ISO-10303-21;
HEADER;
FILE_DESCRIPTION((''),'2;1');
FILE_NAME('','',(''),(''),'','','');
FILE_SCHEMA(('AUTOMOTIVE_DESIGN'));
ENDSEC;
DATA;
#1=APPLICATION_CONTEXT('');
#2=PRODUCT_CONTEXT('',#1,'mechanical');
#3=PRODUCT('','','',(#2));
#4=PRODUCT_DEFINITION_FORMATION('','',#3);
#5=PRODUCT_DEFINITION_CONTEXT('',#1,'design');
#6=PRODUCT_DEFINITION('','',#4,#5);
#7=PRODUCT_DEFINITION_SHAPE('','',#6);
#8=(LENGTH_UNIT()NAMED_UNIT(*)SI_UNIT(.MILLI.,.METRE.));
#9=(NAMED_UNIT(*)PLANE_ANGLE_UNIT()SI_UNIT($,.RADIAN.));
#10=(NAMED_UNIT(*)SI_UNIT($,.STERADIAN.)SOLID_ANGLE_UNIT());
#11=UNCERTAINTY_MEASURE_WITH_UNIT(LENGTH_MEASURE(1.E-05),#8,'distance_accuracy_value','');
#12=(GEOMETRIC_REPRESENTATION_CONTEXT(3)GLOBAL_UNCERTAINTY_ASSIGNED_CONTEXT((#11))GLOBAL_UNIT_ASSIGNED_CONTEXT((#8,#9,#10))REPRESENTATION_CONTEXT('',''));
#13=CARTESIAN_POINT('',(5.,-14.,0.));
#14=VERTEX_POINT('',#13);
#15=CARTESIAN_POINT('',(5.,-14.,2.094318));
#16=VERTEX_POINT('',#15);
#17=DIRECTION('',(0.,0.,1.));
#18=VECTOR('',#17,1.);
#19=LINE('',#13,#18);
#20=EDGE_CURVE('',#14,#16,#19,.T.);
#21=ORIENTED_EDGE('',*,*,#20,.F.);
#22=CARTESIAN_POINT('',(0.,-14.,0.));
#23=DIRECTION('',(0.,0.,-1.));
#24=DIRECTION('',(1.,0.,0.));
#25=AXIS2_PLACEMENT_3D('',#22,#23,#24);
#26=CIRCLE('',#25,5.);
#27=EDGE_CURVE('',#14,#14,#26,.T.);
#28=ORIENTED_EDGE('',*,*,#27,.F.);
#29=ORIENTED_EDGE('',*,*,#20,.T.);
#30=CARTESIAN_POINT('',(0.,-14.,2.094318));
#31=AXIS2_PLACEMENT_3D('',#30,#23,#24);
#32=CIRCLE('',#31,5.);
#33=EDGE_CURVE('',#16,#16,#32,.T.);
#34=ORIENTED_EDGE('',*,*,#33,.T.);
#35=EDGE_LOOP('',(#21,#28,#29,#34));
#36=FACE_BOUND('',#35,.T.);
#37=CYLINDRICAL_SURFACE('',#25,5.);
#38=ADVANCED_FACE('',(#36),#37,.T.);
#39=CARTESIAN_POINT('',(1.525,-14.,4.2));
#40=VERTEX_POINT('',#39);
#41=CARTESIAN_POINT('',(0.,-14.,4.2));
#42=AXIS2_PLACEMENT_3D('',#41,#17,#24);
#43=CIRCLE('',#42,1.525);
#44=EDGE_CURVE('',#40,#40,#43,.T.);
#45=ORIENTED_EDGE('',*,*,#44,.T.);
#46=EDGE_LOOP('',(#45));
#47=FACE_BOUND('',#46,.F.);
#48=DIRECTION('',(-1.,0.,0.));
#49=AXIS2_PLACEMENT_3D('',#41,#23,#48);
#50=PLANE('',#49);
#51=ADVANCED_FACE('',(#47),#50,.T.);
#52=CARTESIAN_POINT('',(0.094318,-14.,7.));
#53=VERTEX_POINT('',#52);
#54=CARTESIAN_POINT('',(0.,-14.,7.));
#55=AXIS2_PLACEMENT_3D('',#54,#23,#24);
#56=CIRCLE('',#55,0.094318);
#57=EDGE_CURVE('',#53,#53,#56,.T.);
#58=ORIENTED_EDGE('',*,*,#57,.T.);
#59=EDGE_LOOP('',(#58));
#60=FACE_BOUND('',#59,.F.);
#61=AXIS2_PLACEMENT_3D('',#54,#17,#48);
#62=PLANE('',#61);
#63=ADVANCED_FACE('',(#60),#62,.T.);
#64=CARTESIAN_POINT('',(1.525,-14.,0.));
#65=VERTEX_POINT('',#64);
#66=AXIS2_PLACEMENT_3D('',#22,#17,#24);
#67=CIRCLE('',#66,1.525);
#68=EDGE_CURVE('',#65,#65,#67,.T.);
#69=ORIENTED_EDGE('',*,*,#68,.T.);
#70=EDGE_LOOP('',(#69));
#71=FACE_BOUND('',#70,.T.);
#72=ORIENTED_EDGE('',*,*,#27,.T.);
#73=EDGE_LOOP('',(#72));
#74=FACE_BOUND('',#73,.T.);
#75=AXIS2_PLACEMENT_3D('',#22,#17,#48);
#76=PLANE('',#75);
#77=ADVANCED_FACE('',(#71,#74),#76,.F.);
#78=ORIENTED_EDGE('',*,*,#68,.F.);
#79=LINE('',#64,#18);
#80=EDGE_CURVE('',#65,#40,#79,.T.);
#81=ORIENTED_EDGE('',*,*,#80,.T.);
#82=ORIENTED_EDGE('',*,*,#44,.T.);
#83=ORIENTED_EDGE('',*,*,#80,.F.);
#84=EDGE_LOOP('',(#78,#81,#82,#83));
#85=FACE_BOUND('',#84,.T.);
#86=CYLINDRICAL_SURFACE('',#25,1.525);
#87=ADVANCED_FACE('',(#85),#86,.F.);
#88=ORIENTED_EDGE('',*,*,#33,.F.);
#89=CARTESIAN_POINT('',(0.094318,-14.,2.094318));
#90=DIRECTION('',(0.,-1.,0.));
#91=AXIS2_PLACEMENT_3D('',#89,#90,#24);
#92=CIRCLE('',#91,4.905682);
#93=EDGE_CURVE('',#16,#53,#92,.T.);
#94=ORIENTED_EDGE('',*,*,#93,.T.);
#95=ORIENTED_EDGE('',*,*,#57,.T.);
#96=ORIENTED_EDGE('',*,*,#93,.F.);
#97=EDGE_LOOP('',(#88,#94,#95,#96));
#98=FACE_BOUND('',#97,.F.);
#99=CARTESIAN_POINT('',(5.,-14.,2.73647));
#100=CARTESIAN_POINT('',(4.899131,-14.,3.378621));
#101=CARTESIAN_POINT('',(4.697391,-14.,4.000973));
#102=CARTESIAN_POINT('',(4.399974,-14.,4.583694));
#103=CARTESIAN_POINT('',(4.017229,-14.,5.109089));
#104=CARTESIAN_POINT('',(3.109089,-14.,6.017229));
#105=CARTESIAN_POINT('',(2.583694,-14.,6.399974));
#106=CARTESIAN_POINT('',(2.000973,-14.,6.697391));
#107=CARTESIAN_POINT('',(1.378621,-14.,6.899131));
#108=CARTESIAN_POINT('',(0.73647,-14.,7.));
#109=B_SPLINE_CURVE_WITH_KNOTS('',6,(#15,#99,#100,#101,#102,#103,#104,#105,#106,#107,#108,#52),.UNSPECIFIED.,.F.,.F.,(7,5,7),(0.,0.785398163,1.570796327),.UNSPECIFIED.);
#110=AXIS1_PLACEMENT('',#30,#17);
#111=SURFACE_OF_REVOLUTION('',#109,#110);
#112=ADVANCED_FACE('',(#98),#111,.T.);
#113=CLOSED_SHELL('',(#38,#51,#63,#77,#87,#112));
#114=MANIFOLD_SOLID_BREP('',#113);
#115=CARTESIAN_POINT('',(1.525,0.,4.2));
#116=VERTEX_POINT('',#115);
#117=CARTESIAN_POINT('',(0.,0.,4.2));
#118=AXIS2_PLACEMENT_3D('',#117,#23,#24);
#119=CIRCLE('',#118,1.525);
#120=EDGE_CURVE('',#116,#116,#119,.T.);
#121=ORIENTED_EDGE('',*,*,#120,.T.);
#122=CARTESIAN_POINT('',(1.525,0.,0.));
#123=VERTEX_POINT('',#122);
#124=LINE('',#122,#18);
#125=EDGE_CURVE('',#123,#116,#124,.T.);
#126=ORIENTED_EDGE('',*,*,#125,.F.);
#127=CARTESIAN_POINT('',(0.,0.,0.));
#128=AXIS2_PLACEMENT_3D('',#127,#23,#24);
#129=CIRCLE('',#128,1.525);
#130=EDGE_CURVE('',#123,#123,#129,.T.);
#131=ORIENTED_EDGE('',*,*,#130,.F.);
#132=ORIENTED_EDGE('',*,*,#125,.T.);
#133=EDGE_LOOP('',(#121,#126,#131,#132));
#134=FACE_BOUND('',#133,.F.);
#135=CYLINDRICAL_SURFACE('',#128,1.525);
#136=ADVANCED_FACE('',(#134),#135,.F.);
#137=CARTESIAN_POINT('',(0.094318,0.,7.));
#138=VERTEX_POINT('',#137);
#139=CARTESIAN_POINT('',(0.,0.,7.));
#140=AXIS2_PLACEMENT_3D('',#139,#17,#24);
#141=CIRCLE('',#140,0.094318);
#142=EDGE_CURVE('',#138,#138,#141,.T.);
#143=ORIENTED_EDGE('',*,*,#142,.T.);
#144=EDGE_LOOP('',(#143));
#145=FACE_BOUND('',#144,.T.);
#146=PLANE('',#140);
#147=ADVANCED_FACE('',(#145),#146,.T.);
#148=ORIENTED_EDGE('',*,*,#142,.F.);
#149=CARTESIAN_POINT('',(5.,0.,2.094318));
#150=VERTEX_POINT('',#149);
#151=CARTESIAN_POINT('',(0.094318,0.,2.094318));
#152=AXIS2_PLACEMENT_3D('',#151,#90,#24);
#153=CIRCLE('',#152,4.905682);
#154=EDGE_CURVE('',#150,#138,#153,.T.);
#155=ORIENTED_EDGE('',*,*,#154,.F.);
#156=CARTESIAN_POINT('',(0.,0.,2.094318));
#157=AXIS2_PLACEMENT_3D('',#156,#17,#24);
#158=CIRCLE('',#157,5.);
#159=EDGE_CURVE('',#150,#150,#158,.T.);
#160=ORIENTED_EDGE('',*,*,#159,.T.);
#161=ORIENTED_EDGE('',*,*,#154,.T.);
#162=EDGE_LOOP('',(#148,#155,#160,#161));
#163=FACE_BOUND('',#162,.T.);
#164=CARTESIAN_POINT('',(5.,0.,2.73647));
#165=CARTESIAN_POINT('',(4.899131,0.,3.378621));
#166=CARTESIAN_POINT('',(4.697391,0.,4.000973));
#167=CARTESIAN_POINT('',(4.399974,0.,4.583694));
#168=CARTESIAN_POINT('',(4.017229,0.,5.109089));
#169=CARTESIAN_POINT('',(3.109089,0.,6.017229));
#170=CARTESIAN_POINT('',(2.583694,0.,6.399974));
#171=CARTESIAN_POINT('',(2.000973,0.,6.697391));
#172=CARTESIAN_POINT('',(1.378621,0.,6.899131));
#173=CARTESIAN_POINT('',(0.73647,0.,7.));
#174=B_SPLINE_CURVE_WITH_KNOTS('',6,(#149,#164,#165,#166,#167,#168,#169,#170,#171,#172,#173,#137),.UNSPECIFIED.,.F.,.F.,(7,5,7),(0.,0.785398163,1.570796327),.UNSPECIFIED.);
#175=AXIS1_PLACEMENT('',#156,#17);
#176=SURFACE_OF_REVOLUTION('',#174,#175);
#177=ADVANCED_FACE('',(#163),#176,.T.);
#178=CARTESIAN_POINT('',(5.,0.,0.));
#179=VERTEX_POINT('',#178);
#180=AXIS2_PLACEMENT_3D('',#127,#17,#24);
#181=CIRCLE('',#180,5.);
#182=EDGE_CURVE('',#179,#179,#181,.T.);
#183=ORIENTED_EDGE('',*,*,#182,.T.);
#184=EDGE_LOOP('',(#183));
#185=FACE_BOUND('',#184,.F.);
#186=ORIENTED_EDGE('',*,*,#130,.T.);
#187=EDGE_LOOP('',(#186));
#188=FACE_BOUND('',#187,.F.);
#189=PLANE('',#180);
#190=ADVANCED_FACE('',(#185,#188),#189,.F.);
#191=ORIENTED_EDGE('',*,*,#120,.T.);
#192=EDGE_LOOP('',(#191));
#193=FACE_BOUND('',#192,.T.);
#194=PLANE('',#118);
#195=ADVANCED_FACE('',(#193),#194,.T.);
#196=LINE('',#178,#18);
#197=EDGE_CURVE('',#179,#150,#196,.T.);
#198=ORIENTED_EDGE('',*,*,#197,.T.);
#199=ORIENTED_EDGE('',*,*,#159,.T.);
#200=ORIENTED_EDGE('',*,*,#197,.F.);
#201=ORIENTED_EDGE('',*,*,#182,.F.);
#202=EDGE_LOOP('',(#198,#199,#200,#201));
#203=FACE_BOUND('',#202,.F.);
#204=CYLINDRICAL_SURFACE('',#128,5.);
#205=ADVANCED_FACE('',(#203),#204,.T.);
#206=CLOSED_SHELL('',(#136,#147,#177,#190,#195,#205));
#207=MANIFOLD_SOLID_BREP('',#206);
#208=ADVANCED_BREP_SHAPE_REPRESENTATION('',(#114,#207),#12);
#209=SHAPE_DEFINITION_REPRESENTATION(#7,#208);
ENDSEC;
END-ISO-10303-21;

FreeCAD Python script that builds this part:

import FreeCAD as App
import Part
import Sketcher

V = App.Vector
Q = App.Units.Quantity


def edges_at(feature, points):
    """Names of the edges that pass closest to the given points."""
    edges = feature.Shape.Edges
    near = lambda p: min(range(len(edges)), key=lambda i: edges[i].distToShape(Part.Vertex(*p))[0])
    return sorted({f"Edge{near(p) + 1}" for p in points})

doc = App.newDocument("Part")
params = doc.addObject("Spreadsheet::Sheet", "Params")
for row, (alias, value) in enumerate([
    ("sketch1_diameter", "10 mm"),
    ("pad1_length", "7 mm"),
    ("fillet_radius", "4.905682 mm"),
    ("sketch2_diameter", "3.05 mm"),
    ("pocket1_length", "4.2 mm"),
], start=1):
    params.set(f"A{row}", alias)
    params.set(f"B{row}", "=" + value)
    params.setAlias(f"B{row}", alias)

body = doc.addObject("PartDesign::Body", "Body")

# Sketch on XY plane
sketch1 = body.newObject("Sketcher::SketchObject", "Sketch")
sketch1.AttachmentSupport = (doc.getObject("XY_Plane"), [""])
sketch1.MapMode = "FlatFace"
sketch1.addGeometry(Part.Circle(V(0, 0, 0), V(0, 0, 1), 5), False)
sketch1.addConstraint([
    Sketcher.Constraint("Coincident", 0, 3, -1, 1),
    Sketcher.Constraint("Diameter", 0, Q("10 mm")),
])
sketch1.setExpression("Constraints[1]", "Params.sketch1_diameter")
pad1 = body.newObject("PartDesign::Pad", "Pad")
pad1.Profile = sketch1
pad1.setExpression("Length", "Params.pad1_length")
doc.recompute()

fillet = body.newObject("PartDesign::Fillet", "Fillet")
fillet.Base = (pad1, edges_at(pad1, [(-5, 0, 7)]))
fillet.setExpression("Radius", "Params.fillet_radius")

# Sketch on XY plane
sketch2 = body.newObject("Sketcher::SketchObject", "Sketch001")
sketch2.AttachmentSupport = (doc.getObject("XY_Plane"), [""])
sketch2.MapMode = "FlatFace"
sketch2.addGeometry(Part.Circle(V(0, 0, 0), V(0, 0, 1), 1.5), False)
sketch2.addConstraint([
    Sketcher.Constraint("Coincident", 0, 3, -1, 1),
    Sketcher.Constraint("Diameter", 0, Q("3.05 mm")),
])
sketch2.setExpression("Constraints[1]", "Params.sketch2_diameter")
pocket1 = body.newObject("PartDesign::Pocket", "Pocket")
pocket1.Profile = sketch2
pocket1.setExpression("Length", "Params.pocket1_length")
pocket1.Reversed = True
body2 = doc.addObject("PartDesign::Body", "Body001")
doc.recompute()

mirroring = doc.addObject("Part::Mirroring", "Mirroring")
mirroring.Source = body
mirroring.Base = V(0, -7, 0)
mirroring.Normal = V(0, -1, 0)
body2.BaseFeature = mirroring
doc.recompute()
mirroring.Visibility = False

doc.recompute()
